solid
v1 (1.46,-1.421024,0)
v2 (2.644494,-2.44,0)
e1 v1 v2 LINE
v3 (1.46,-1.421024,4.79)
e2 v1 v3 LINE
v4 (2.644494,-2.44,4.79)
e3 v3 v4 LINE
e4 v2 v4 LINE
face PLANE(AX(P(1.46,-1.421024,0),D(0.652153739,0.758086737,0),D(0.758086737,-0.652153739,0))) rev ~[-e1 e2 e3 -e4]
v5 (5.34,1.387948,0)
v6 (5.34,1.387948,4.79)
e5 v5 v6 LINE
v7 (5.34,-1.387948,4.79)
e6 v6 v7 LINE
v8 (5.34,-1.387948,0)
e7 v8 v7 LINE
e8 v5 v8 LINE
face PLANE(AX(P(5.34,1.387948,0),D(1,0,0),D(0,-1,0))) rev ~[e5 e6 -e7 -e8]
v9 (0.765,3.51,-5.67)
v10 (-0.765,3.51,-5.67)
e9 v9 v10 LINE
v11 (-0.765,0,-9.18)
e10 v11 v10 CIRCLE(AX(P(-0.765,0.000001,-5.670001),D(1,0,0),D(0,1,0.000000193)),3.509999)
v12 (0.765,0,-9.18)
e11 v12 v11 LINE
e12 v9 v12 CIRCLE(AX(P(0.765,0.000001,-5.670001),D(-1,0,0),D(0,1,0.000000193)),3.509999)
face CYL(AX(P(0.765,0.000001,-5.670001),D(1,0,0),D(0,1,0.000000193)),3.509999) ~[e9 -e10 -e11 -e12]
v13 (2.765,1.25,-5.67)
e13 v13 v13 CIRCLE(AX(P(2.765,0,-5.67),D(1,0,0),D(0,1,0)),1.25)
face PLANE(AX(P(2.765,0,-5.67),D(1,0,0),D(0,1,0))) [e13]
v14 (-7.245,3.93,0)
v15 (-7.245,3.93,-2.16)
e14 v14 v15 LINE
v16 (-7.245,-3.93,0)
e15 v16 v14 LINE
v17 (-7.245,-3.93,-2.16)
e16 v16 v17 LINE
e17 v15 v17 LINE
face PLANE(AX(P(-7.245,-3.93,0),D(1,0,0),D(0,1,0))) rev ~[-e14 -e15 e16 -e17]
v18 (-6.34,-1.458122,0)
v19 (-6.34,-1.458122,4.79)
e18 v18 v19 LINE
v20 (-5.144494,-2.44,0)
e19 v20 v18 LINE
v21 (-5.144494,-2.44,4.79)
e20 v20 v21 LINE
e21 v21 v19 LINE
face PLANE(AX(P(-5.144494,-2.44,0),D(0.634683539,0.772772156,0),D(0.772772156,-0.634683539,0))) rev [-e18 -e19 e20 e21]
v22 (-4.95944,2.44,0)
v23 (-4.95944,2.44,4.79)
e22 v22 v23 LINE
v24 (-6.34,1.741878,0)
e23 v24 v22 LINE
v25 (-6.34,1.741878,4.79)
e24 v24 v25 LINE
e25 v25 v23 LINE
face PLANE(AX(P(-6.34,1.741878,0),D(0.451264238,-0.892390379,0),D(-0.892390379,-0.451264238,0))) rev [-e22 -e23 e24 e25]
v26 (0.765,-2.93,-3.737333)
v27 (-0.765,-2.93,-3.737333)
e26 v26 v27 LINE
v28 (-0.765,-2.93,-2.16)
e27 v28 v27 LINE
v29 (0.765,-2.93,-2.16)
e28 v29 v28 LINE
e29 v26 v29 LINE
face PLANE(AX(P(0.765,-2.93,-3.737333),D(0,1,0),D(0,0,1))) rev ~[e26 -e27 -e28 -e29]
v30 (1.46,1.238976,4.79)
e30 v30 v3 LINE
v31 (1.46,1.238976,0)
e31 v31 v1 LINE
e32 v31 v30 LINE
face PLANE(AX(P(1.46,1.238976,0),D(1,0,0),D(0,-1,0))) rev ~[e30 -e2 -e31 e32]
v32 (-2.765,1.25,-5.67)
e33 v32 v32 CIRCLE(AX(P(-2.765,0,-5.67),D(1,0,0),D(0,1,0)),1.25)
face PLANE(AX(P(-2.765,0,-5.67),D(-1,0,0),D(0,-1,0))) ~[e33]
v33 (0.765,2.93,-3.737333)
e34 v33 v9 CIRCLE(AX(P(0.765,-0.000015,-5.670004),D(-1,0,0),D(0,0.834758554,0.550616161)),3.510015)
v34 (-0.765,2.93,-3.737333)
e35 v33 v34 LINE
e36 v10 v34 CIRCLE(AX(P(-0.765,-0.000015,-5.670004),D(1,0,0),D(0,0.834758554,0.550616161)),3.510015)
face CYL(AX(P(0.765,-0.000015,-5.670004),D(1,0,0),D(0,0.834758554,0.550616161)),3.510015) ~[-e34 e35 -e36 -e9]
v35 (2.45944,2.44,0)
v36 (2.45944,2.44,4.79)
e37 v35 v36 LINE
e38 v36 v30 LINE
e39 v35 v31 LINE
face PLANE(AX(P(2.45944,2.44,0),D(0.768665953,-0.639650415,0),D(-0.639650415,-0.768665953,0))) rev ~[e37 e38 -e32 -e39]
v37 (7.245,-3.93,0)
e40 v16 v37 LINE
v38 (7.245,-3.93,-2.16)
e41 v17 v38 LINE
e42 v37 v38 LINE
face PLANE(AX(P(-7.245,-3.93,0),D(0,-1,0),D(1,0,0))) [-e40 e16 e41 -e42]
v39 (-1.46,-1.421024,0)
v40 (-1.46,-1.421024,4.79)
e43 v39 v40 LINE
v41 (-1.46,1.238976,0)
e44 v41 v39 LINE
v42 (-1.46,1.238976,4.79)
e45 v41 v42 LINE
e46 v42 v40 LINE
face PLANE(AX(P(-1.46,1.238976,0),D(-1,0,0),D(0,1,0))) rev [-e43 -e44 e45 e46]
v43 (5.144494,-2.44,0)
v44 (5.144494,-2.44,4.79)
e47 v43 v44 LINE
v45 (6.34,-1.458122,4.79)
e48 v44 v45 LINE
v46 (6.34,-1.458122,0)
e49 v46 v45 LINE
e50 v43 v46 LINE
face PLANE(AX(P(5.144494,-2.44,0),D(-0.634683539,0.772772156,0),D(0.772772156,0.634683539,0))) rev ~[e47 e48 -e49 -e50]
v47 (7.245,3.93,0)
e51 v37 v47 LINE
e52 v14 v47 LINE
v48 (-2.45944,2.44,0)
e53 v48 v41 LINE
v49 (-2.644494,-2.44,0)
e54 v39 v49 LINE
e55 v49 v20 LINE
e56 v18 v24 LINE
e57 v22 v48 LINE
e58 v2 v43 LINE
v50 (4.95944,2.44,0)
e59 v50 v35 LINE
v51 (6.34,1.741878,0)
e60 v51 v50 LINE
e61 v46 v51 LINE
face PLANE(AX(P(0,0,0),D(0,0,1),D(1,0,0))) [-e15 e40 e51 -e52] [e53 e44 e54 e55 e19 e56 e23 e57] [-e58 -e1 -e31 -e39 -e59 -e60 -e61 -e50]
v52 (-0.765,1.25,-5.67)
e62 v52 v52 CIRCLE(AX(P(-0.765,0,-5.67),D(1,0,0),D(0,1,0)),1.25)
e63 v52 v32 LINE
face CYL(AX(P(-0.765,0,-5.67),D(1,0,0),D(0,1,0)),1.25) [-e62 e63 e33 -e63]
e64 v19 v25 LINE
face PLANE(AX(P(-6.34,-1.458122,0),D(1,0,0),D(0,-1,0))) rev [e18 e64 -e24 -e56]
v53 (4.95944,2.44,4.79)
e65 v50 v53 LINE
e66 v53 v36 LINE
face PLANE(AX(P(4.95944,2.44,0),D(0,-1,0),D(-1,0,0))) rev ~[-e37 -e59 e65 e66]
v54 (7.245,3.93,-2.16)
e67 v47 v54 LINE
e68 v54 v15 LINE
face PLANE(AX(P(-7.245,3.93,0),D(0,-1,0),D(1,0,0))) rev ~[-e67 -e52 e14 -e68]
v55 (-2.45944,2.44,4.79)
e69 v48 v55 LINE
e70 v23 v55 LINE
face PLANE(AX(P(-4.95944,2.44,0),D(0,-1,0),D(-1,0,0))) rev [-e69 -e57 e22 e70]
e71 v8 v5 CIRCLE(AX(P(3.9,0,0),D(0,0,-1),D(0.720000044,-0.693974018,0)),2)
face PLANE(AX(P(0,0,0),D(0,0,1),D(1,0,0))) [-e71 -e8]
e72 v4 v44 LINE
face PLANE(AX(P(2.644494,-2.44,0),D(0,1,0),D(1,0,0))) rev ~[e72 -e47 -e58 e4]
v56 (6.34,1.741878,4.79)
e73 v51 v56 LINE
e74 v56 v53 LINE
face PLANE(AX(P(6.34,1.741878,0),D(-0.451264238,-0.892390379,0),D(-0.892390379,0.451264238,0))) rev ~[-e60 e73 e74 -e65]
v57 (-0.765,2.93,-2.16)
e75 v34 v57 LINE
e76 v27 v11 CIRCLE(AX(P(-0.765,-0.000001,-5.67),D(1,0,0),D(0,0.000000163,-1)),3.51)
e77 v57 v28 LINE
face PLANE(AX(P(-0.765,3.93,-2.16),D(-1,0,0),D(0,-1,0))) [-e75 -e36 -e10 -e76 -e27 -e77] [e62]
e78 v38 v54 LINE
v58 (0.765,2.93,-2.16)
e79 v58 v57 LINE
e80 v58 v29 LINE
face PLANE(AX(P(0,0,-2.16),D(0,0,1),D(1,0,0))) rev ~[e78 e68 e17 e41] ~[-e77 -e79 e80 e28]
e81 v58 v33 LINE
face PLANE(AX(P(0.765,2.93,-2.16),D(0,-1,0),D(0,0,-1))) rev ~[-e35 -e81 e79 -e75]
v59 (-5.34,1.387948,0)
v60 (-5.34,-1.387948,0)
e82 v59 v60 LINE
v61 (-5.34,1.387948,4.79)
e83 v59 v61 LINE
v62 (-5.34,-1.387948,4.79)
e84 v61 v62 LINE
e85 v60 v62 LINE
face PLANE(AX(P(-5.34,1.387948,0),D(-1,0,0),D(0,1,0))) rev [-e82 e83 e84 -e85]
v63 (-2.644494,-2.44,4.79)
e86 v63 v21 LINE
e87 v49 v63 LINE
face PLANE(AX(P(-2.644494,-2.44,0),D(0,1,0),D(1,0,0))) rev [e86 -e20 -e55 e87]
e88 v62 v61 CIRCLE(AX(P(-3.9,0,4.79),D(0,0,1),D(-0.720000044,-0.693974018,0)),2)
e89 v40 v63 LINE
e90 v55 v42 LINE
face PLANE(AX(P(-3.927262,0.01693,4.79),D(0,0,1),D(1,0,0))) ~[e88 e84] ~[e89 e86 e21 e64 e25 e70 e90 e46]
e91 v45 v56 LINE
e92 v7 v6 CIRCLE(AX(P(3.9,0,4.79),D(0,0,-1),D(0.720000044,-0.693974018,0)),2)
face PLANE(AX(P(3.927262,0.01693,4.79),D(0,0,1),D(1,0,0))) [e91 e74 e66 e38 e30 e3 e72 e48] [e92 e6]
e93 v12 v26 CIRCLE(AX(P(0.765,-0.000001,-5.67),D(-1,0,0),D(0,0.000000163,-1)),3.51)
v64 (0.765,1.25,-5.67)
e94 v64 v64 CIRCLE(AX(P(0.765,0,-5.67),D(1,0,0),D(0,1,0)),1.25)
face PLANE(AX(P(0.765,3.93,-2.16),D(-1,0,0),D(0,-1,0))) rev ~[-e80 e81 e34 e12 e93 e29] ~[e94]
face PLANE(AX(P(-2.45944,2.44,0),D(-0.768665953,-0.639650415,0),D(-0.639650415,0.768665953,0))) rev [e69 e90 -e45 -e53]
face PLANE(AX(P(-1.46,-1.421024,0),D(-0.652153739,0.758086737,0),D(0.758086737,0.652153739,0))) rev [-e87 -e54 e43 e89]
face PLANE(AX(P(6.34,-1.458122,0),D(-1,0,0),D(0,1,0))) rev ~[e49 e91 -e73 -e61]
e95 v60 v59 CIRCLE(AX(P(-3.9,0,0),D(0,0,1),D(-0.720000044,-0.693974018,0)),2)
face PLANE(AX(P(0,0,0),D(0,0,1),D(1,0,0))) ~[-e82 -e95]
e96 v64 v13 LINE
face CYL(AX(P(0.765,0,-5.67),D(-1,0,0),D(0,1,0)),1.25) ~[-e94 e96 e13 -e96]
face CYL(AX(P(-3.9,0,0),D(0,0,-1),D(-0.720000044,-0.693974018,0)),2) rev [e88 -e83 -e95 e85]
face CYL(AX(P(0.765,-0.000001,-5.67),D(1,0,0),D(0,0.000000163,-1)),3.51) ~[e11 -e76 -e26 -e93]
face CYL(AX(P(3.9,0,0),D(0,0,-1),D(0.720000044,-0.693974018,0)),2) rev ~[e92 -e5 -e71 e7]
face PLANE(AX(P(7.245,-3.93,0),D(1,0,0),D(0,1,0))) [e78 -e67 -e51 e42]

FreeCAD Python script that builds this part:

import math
import FreeCAD as App
import Part
import Sketcher

V = App.Vector
Q = App.Units.Quantity

doc = App.newDocument("Part")
body = doc.addObject("PartDesign::Body", "Body")

sketch1 = body.newObject("Sketcher::SketchObject", "Sketch")
sketch1.AttachmentSupport = (doc.getObject("XY_Plane"), [""])
sketch1.MapMode = "FlatFace"
sketch1.addGeometry([
    Part.LineSegment(V(-7, 4, 0), V(-7, -4, 0)),
    Part.LineSegment(V(-7, -4, 0), V(7, -4, 0)),
    Part.LineSegment(V(7, -4, 0), V(7, 4, 0)),
    Part.LineSegment(V(7, 4, 0), V(-7, 4, 0)),
], False)
sketch1.addConstraint([
    Sketcher.Constraint("Coincident", 0, 2, 1, 1),
    Sketcher.Constraint("Coincident", 1, 2, 2, 1),
    Sketcher.Constraint("Coincident", 2, 2, 3, 1),
    Sketcher.Constraint("Coincident", 3, 2, 0, 1),
    Sketcher.Constraint("Vertical", 0),
    Sketcher.Constraint("Horizontal", 1),
    Sketcher.Constraint("Vertical", 2),
    Sketcher.Constraint("Horizontal", 3),
    Sketcher.Constraint("Symmetric", 0, 2, 2, 2, -1, 1),
    Sketcher.Constraint("DistanceX", 1, 1, 1, 2, Q("14.49 mm")),
    Sketcher.Constraint("DistanceY", 0, 2, 0, 1, Q("7.86 mm")),
])
pad1 = body.newObject("PartDesign::Pad", "Pad")
pad1.Profile = sketch1
pad1.Length = 2.16
pad1.Reversed = True

sketch2 = body.newObject("Sketcher::SketchObject", "Sketch001")
sketch2.AttachmentSupport = (doc.getObject("XY_Plane"), [""])
sketch2.MapMode = "FlatFace"
sketch2.AttachmentOffset = App.Placement(V(0, 0, -2.16), App.Rotation())
sketch2.addGeometry([
    Part.LineSegment(V(-0.8, -3.9, 0), V(-0.8, 3.9, 0)),
    Part.LineSegment(V(-0.8, 3.9, 0), V(0.8, 3.9, 0)),
    Part.LineSegment(V(0.8, 3.9, 0), V(0.8, -3.9, 0)),
    Part.LineSegment(V(0.8, -3.9, 0), V(-0.8, -3.9, 0)),
], False)
sketch2.addConstraint([
    Sketcher.Constraint("Coincident", 0, 2, 1, 1),
    Sketcher.Constraint("Coincident", 1, 2, 2, 1),
    Sketcher.Constraint("Coincident", 2, 2, 3, 1),
    Sketcher.Constraint("Coincident", 3, 2, 0, 1),
    Sketcher.Constraint("Vertical", 0),
    Sketcher.Constraint("Horizontal", 1),
    Sketcher.Constraint("Vertical", 2),
    Sketcher.Constraint("Horizontal", 3),
    Sketcher.Constraint("Symmetric", 0, 2, 2, 2, -1, 1),
    Sketcher.Constraint("DistanceX", 1, 1, 1, 2, Q("1.53 mm")),
    Sketcher.Constraint("DistanceY", 0, 1, 0, 2, Q("7.86 mm")),
])
pad2 = body.newObject("PartDesign::Pad", "Pad001")
pad2.Profile = sketch2
pad2.Length = 7.02
pad2.Reversed = True

sketch3 = body.newObject("Sketcher::SketchObject", "Sketch002")
sketch3.AttachmentSupport = (doc.getObject("YZ_Plane"), [""])
sketch3.MapMode = "FlatFace"
sketch3.AttachmentOffset = App.Placement(V(0, 0, 0.765), App.Rotation())
sketch3.addGeometry([
    Part.LineSegment(V(-3.9, -9.2, 0), V(0, -9.2, 0)),
    Part.ArcOfCircle(Part.Circle(V(0, -5.7, 0), V(0, 0, 1), 3.5), math.radians(147), math.radians(270)),
    Part.LineSegment(V(-2.9, -3.7, 0), V(-2.9, -2.2, 0)),
    Part.LineSegment(V(-2.9, -2.2, 0), V(-3.9, -2.2, 0)),
    Part.LineSegment(V(-3.9, -2.2, 0), V(-3.9, -9.2, 0)),
    Part.ArcOfCircle(Part.Circle(V(0, -5.7, 0), V(0, 0, 1), 3.5), math.radians(0), math.radians(33)),
    Part.ArcOfCircle(Part.Circle(V(0, -5.7, 0), V(0, 0, 1), 3.5), math.radians(-90), math.radians(0)),
    Part.LineSegment(V(0, -9.2, 0), V(3.9, -9.2, 0)),
    Part.LineSegment(V(3.9, -9.2, 0), V(3.9, -2.2, 0)),
    Part.LineSegment(V(3.9, -2.2, 0), V(2.9, -2.2, 0)),
    Part.LineSegment(V(2.9, -2.2, 0), V(2.9, -3.7, 0)),
], False)
sketch3.addConstraint([
    Sketcher.Constraint("Tangent", 0, 2, 1, 2),
    Sketcher.Constraint("Coincident", 1, 1, 2, 1),
    Sketcher.Constraint("Coincident", 2, 2, 3, 1),
    Sketcher.Constraint("Coincident", 3, 2, 4, 1),
    Sketcher.Constraint("Coincident", 4, 2, 0, 1),
    Sketcher.Constraint("Tangent", 5, 1, 6, 2),
    Sketcher.Constraint("Tangent", 6, 1, 7, 1),
    Sketcher.Constraint("Coincident", 7, 2, 8, 1),
    Sketcher.Constraint("Coincident", 8, 2, 9, 1),
    Sketcher.Constraint("Coincident", 9, 2, 10, 1),
    Sketcher.Constraint("Coincident", 10, 2, 5, 2),
    Sketcher.Constraint("Horizontal", 0),
    Sketcher.Constraint("Vertical", 2),
    Sketcher.Constraint("Horizontal", 3),
    Sketcher.Constraint("Vertical", 4),
    Sketcher.Constraint("Horizontal", 7),
    Sketcher.Constraint("Vertical", 8),
    Sketcher.Constraint("Horizontal", 9),
    Sketcher.Constraint("Vertical", 10),
    Sketcher.Constraint("Coincident", 6, 3, 1, 3),
    Sketcher.Constraint("Equal", 1, 6),
    Sketcher.Constraint("Symmetric", 3, 2, 8, 2, -2),
    Sketcher.Constraint("Symmetric", 1, 1, 10, 2, -2),
    Sketcher.Constraint("PointOnObject", 1, 3, -2),
    Sketcher.Constraint("Horizontal", 6, 3, 5, 1),
    Sketcher.Constraint("DistanceX", 3, 2, 3, 1, Q("1 mm")),
    Sketcher.Constraint("Radius", 1, Q("3.51 mm")),
    Sketcher.Constraint("DistanceX", 0, 1, 0, 2, Q("3.93 mm")),
    Sketcher.Constraint("DistanceY", 4, 2, 4, 1, Q("7.02 mm")),
    Sketcher.Constraint("DistanceY", 1, 3, -1, 1, Q("5.67 mm")),
])
pocket1 = body.newObject("PartDesign::Pocket", "Pocket")
pocket1.Profile = sketch3
pocket1.Type = "ThroughAll"

sketch4 = body.newObject("Sketcher::SketchObject", "Sketch003")
sketch4.AttachmentSupport = (doc.getObject("YZ_Plane"), [""])
sketch4.MapMode = "FlatFace"
sketch4.AttachmentOffset = App.Placement(V(0, 0, 0.765), App.Rotation())
sketch4.addGeometry(Part.Circle(V(0, -5.7, 0), V(0, 0, 1), 1.2), False)
sketch4.addConstraint([
    Sketcher.Constraint("PointOnObject", 0, 3, -2),
    Sketcher.Constraint("Diameter", 0, Q("2.5 mm")),
    Sketcher.Constraint("DistanceY", 0, 3, -1, 1, Q("5.67 mm")),
])
pad3 = body.newObject("PartDesign::Pad", "Pad002")
pad3.Profile = sketch4
pad3.Length = 2
body2 = doc.addObject("PartDesign::Body", "Body001")
doc.recompute()

body2.BaseFeature = body
doc.recompute()

mirroring = doc.addObject("Part::Mirroring", "Mirroring")
mirroring.Source = body
mirroring.Base = V(0, 0, 0)
mirroring.Normal = V(1, 0, 0)
body3 = doc.addObject("PartDesign::Body", "Body002")
body3.BaseFeature = mirroring
boolean = body2.newObject("PartDesign::Boolean", "Boolean")
boolean.Type = "Fuse"
boolean.addObjects([body3])
doc.recompute()

sketch5 = body2.newObject("Sketcher::SketchObject", "Sketch004")
sketch5.AttachmentSupport = (doc.getObject("XY_Plane001"), [""])
sketch5.MapMode = "FlatFace"
sketch5.addGeometry([
    Part.LineSegment(V(5, 2.4, 0), V(2.5, 2.4, 0)),
    Part.LineSegment(V(2.5, 2.4, 0), V(1.5, 1.2, 0)),
    Part.LineSegment(V(1.5, 1.2, 0), V(1.5, -1.4, 0)),
    Part.LineSegment(V(1.5, -1.4, 0), V(2.6, -2.4, 0)),
    Part.LineSegment(V(2.6, -2.4, 0), V(5.1, -2.4, 0)),
    Part.LineSegment(V(5.1, -2.4, 0), V(6.3, -1.5, 0)),
    Part.LineSegment(V(6.3, -1.5, 0), V(6.3, 1.7, 0)),
    Part.LineSegment(V(6.3, 1.7, 0), V(5, 2.4, 0)),
    Part.ArcOfCircle(Part.Circle(V(3.9, 0, 0), V(0, 0, 1), 2), math.radians(44), math.radians(316)),
    Part.LineSegment(V(5.3, 1.4, 0), V(5.3, -1.4, 0)),
], False)
sketch5.addConstraint([
    Sketcher.Constraint("Coincident", 0, 2, 1, 1),
    Sketcher.Constraint("Coincident", 1, 2, 2, 1),
    Sketcher.Constraint("Coincident", 2, 2, 3, 1),
    Sketcher.Constraint("Coincident", 3, 2, 4, 1),
    Sketcher.Constraint("Coincident", 4, 2, 5, 1),
    Sketcher.Constraint("Coincident", 5, 2, 6, 1),
    Sketcher.Constraint("Coincident", 6, 2, 7, 1),
    Sketcher.Constraint("Coincident", 7, 2, 0, 1),
    Sketcher.Constraint("Coincident", 8, 1, 9, 1),
    Sketcher.Constraint("Coincident", 9, 2, 8, 2),
    Sketcher.Constraint("Horizontal", 0),
    Sketcher.Constraint("Vertical", 2),
    Sketcher.Constraint("Horizontal", 4),
    Sketcher.Constraint("Vertical", 6),
    Sketcher.Constraint("Vertical", 9),
    Sketcher.Constraint("PointOnObject", 8, 3, -1),
    Sketcher.Constraint("Equal", 0, 4),
    Sketcher.Constraint("Equal", 1, 3),
    Sketcher.Constraint("Equal", 5, 7),
    Sketcher.Constraint("Radius", 8, Q("2 mm")),
    Sketcher.Constraint("DistanceX", 0, 2, 0, 1, Q("2.5 mm")),
    Sketcher.Constraint("DistanceY", 6, 1, 6, 2, Q("3.2 mm")),
    Sketcher.Constraint("DistanceX", 8, 1, 6, 2, Q("1 mm")),
    Sketcher.Constraint("DistanceY", 2, 2, 2, 1, Q("2.66 mm")),
    Sketcher.Constraint("DistanceX", -1, 1, 8, 3, Q("3.9 mm")),
    Sketcher.Constraint("DistanceY", -1, 1, 0, 2, Q("2.44 mm")),
    Sketcher.Constraint("DistanceX", -1, 1, 1, 2, Q("1.46 mm")),
    Sketcher.Constraint("DistanceY", 3, 2, -1, 1, Q("2.44 mm")),
    Sketcher.Constraint("DistanceX", -1, 1, 5, 2, Q("6.34 mm")),
    Sketcher.Constraint("DistanceY", 1, 2, 6, 2, Q("0.502902 mm")),
    Sketcher.Constraint("Distance", 1, Q("1.562478 mm")),
])
pad4 = body2.newObject("PartDesign::Pad", "Pad003")
pad4.Profile = sketch5
pad4.Length = 4.79
body4 = doc.addObject("PartDesign::Body", "Body003")
doc.recompute()

body4.BaseFeature = body2
doc.recompute()

mirroring2 = doc.addObject("Part::Mirroring", "Mirroring001")
mirroring2.Source = body2
mirroring2.Base = V(0, 0, 0)
mirroring2.Normal = V(1, 0, 0)
body5 = doc.addObject("PartDesign::Body", "Body004")
body5.BaseFeature = mirroring2
boolean2 = body4.newObject("PartDesign::Boolean", "Boolean001")
boolean2.Type = "Fuse"
boolean2.addObjects([body5])
doc.recompute()
mirroring.Visibility = False
mirroring2.Visibility = False

doc.recompute()
